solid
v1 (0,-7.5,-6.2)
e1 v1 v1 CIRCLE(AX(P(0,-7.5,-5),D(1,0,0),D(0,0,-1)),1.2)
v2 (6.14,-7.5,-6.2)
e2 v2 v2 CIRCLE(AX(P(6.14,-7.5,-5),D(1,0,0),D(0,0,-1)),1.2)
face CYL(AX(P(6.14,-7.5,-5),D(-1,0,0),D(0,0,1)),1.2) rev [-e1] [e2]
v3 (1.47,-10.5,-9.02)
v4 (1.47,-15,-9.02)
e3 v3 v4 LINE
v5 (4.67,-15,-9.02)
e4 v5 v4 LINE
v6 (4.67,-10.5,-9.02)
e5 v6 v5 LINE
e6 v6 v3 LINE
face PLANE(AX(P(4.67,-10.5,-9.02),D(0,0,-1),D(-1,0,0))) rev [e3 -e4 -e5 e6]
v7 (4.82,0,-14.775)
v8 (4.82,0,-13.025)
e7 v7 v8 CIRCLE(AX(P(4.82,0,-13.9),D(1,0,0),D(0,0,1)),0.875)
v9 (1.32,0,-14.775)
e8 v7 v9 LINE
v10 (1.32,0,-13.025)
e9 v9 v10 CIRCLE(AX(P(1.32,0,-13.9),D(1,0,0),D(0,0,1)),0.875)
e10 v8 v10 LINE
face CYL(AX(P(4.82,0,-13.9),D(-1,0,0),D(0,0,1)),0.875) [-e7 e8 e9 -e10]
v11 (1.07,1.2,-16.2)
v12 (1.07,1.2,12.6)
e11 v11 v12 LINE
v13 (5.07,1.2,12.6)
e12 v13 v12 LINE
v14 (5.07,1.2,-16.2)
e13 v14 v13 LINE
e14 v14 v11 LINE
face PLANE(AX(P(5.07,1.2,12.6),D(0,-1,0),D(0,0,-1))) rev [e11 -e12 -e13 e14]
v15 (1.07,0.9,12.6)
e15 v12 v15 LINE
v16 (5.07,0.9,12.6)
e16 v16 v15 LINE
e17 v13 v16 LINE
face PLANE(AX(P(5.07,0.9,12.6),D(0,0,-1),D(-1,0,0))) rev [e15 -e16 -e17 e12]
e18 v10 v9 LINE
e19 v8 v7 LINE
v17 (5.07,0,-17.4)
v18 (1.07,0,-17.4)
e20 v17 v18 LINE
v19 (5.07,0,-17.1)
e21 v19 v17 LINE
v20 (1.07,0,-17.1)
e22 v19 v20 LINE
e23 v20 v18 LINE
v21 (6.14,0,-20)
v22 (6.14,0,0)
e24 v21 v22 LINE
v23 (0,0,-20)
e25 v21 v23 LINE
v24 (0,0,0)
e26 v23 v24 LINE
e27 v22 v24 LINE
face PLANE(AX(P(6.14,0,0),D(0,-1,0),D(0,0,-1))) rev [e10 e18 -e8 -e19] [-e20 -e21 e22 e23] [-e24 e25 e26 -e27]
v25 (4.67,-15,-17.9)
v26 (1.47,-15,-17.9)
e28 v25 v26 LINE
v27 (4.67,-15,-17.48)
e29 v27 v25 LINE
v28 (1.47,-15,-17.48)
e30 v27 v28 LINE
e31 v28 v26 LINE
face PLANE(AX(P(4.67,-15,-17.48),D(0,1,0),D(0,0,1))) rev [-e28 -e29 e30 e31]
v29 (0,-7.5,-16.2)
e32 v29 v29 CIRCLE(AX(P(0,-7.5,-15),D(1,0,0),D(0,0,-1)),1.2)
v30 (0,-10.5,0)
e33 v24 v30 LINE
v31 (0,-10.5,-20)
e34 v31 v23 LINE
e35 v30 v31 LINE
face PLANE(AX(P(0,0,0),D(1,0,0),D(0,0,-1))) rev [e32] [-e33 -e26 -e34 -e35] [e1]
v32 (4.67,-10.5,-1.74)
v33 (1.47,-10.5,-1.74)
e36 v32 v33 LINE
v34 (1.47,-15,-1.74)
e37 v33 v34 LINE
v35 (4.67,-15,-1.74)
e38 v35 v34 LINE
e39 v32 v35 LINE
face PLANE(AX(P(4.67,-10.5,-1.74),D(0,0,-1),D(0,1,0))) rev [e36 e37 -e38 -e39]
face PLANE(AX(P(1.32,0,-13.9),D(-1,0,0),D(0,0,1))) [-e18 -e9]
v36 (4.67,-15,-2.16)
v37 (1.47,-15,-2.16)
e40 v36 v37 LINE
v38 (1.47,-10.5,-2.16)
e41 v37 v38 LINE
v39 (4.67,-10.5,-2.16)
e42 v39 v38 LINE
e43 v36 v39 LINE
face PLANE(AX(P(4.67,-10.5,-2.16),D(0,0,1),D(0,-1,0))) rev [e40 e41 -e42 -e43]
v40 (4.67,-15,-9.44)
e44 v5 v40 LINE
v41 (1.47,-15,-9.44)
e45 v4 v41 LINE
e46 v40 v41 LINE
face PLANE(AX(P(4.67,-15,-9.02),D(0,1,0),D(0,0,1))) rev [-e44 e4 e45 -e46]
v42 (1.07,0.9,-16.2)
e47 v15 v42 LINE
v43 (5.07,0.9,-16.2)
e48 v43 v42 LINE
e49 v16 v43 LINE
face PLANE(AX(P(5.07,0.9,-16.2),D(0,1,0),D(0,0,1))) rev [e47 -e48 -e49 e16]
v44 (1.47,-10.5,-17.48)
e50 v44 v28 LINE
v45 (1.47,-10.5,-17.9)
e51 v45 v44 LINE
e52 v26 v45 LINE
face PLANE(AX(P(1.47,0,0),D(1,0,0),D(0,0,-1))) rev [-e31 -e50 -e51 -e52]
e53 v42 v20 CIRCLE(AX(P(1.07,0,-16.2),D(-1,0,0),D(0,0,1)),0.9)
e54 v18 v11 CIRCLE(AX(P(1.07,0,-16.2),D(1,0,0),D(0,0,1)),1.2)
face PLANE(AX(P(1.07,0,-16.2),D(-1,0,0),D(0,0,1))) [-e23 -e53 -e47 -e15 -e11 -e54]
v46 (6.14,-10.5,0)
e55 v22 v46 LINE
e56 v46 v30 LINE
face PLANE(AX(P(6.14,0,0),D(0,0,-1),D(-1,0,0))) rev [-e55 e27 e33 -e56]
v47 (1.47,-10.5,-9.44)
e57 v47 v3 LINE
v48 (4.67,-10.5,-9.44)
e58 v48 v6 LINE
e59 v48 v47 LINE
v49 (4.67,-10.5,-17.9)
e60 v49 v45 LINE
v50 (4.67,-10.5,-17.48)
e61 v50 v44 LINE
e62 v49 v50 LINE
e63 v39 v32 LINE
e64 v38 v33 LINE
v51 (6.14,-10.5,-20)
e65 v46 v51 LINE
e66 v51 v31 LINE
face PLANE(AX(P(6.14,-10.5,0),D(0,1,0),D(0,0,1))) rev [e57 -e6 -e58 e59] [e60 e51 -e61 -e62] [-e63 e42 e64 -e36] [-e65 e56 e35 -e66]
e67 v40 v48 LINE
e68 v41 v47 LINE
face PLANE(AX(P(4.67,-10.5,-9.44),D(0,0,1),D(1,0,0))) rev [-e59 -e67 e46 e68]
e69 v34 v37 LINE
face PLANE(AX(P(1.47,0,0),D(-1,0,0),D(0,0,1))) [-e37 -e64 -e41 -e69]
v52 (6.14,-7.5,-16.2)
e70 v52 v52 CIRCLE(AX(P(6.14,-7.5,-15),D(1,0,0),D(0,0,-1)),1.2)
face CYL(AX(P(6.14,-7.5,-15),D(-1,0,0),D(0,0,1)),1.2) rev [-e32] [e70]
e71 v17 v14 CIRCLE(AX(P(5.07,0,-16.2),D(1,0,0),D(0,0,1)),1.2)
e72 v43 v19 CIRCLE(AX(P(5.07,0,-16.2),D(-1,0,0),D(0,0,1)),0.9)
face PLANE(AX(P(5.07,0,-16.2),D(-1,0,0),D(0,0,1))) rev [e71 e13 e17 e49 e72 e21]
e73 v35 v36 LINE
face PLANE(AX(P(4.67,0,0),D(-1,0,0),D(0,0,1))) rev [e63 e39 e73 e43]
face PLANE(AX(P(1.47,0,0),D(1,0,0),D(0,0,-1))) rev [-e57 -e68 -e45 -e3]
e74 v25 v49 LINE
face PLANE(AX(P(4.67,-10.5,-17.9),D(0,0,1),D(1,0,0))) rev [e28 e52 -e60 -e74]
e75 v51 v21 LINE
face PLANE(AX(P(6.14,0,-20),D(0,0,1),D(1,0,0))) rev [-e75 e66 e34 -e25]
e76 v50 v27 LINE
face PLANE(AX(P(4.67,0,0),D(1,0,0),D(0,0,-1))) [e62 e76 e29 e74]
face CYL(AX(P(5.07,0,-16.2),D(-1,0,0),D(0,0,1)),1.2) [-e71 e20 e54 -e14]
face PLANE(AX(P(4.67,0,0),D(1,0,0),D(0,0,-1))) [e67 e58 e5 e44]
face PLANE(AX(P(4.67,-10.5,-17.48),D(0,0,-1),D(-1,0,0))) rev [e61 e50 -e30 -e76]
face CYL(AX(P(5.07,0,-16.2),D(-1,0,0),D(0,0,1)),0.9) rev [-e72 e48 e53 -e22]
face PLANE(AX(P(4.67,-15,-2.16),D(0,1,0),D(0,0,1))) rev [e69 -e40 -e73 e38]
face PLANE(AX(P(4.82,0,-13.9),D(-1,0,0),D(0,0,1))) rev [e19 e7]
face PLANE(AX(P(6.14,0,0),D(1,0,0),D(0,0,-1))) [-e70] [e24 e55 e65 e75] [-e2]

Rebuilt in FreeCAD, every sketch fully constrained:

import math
import FreeCAD as App
import Part
import Sketcher
Q = App.Units.Quantity

doc = App.newDocument("Part")
params = doc.addObject("Spreadsheet::Sheet", "Params")
for row, (alias, value) in enumerate([
    ("sketch1_diameter", "2.4 mm"),
    ("sketch1_height", "20 mm"),
    ("sketch1_width", "10.5 mm"),
    ("pad1_length", "6.14 mm"),
    ("sketch2_radius", "0.9 mm"),
    ("sketch2_radius2", "1.2 mm"),
    ("sketch2_height", "28.8 mm"),
    ("pad2_length", "4 mm"),
    ("pad3_length", "3.5 mm"),
    ("sketch4_width", "4.5 mm"),
    ("sketch4_height", "0.42 mm"),
    ("pad4_length", "3.2 mm"),
], start=1):
    params.set(f"A{row}", alias)
    params.set(f"B{row}", "=" + value)
    params.setAlias(f"B{row}", alias)

body = doc.addObject("PartDesign::Body", "Body")

# Sketch on YZ plane
sketch1 = doc.addObject("Sketcher::SketchObject", "Sketch")
body.addObject(sketch1)
sketch1.AttachmentSupport = (doc.YZ_Plane, [""])
sketch1.MapMode = "FlatFace"
sketch1.addGeometry(Part.LineSegment(App.Vector(0, 0, 0), App.Vector(-10.5, 0, 0)), False)
sketch1.addGeometry(Part.LineSegment(App.Vector(-10.5, 0, 0), App.Vector(-10.5, -20, 0)), False)
sketch1.addGeometry(Part.LineSegment(App.Vector(-10.5, -20, 0), App.Vector(0, -20, 0)), False)
sketch1.addGeometry(Part.LineSegment(App.Vector(0, -20, 0), App.Vector(0, 0, 0)), False)
sketch1.addGeometry(Part.Circle(App.Vector(-7.5, -5, 0), App.Vector(0, 0, 1), 1.2), False)
sketch1.addGeometry(Part.Circle(App.Vector(-7.5, -15, 0), App.Vector(0, 0, 1), 1.2), False)
sketch1.addConstraint(Sketcher.Constraint("Coincident", 0, 2, 1, 1))
sketch1.addConstraint(Sketcher.Constraint("Coincident", 1, 2, 2, 1))
sketch1.addConstraint(Sketcher.Constraint("Coincident", 2, 2, 3, 1))
sketch1.addConstraint(Sketcher.Constraint("Coincident", 3, 2, 0, 1))
sketch1.addConstraint(Sketcher.Constraint("Horizontal", 0))
sketch1.addConstraint(Sketcher.Constraint("Vertical", 1))
sketch1.addConstraint(Sketcher.Constraint("Horizontal", 2))
sketch1.addConstraint(Sketcher.Constraint("Vertical", 3))
sketch1.addConstraint(Sketcher.Constraint("Coincident", 3, 2, -1, 1))
sketch1.addConstraint(Sketcher.Constraint("Equal", 4, 5))
sketch1.addConstraint(Sketcher.Constraint("Vertical", 4, 3, 5, 3))
sketch1.addConstraint(Sketcher.Constraint("Diameter", 4, Q("2.4 mm")))
sketch1.addConstraint(Sketcher.Constraint("DistanceY", 1, 2, 1, 1, Q("20 mm")))
sketch1.addConstraint(Sketcher.Constraint("DistanceX", 0, 2, 0, 1, Q("10.5 mm")))
sketch1.addConstraint(Sketcher.Constraint("DistanceY", 4, 3, -1, 1, Q("5 mm")))
sketch1.addConstraint(Sketcher.Constraint("DistanceY", 5, 3, -1, 1, Q("15 mm")))
sketch1.addConstraint(Sketcher.Constraint("DistanceX", 0, 2, 4, 3, Q("3 mm")))
sketch1.setExpression("Constraints[11]", "Params.sketch1_diameter")
sketch1.setExpression("Constraints[12]", "Params.sketch1_height")
sketch1.setExpression("Constraints[13]", "Params.sketch1_width")
pad1 = doc.addObject("PartDesign::Pad", "Pad")
body.addObject(pad1)
pad1.Profile = sketch1
pad1.setExpression("Length", "Params.pad1_length")

# Sketch on YZ plane
sketch2 = doc.addObject("Sketcher::SketchObject", "Sketch001")
body.addObject(sketch2)
sketch2.AttachmentSupport = (doc.YZ_Plane, [""])
sketch2.MapMode = "FlatFace"
sketch2.AttachmentOffset = App.Placement(App.Vector(0, 0, 3.07), App.Rotation())
sketch2.addGeometry(Part.LineSegment(App.Vector(0.9, 12.6, 0), App.Vector(0.9, -16.2, 0)), False)
sketch2.addGeometry(Part.ArcOfCircle(Part.Circle(App.Vector(0, -16.2, 0), App.Vector(0, 0, 1), 0.9), math.radians(-90), math.radians(0)), False)
sketch2.addGeometry(Part.LineSegment(App.Vector(0, -17.1, 0), App.Vector(0, -17.4, 0)), False)
sketch2.addGeometry(Part.ArcOfCircle(Part.Circle(App.Vector(0, -16.2, 0), App.Vector(0, 0, 1), 1.2), math.radians(-90), math.radians(0)), False)
sketch2.addGeometry(Part.LineSegment(App.Vector(1.2, -16.2, 0), App.Vector(1.2, 12.6, 0)), False)
sketch2.addGeometry(Part.LineSegment(App.Vector(1.2, 12.6, 0), App.Vector(0.9, 12.6, 0)), False)
sketch2.addConstraint(Sketcher.Constraint("Tangent", 0, 2, 1, 2))
sketch2.addConstraint(Sketcher.Constraint("Coincident", 1, 1, 2, 1))
sketch2.addConstraint(Sketcher.Constraint("Coincident", 2, 2, 3, 1))
sketch2.addConstraint(Sketcher.Constraint("Tangent", 3, 2, 4, 1))
sketch2.addConstraint(Sketcher.Constraint("Coincident", 4, 2, 5, 1))
sketch2.addConstraint(Sketcher.Constraint("Coincident", 5, 2, 0, 1))
sketch2.addConstraint(Sketcher.Constraint("Vertical", 0))
sketch2.addConstraint(Sketcher.Constraint("Vertical", 2))
sketch2.addConstraint(Sketcher.Constraint("Vertical", 4))
sketch2.addConstraint(Sketcher.Constraint("Horizontal", 5))
sketch2.addConstraint(Sketcher.Constraint("Coincident", 3, 3, 1, 3))
sketch2.addConstraint(Sketcher.Constraint("PointOnObject", 1, 3, -2))
sketch2.addConstraint(Sketcher.Constraint("PointOnObject", 1, 1, -2))
sketch2.addConstraint(Sketcher.Constraint("Radius", 1, Q("0.9 mm")))
sketch2.addConstraint(Sketcher.Constraint("Radius", 3, Q("1.2 mm")))
sketch2.addConstraint(Sketcher.Constraint("DistanceY", 0, 2, 0, 1, Q("28.8 mm")))
sketch2.addConstraint(Sketcher.Constraint("DistanceY", 1, 3, -1, 1, Q("16.2 mm")))
sketch2.setExpression("Constraints[13]", "Params.sketch2_radius")
sketch2.setExpression("Constraints[14]", "Params.sketch2_radius2")
sketch2.setExpression("Constraints[15]", "Params.sketch2_height")
pad2 = doc.addObject("PartDesign::Pad", "Pad001")
body.addObject(pad2)
pad2.Profile = sketch2
pad2.setExpression("Length", "Params.pad2_length")
pad2.Midplane = True

# Sketch on YZ plane
sketch3 = doc.addObject("Sketcher::SketchObject", "Sketch002")
body.addObject(sketch3)
sketch3.AttachmentSupport = (doc.YZ_Plane, [""])
sketch3.MapMode = "FlatFace"
sketch3.AttachmentOffset = App.Placement(App.Vector(0, 0, 3.07), App.Rotation())
sketch3.addGeometry(Part.LineSegment(App.Vector(0, -13.025, 0), App.Vector(0, -14.775, 0)), False)
sketch3.addGeometry(Part.ArcOfCircle(Part.Circle(App.Vector(0, -13.9, 0), App.Vector(0, 0, 1), 0.875), math.radians(-90), math.radians(90)), False)
sketch3.addConstraint(Sketcher.Constraint("Coincident", 0, 1, 1, 2))
sketch3.addConstraint(Sketcher.Constraint("Coincident", 1, 1, 0, 2))
sketch3.addConstraint(Sketcher.Constraint("Vertical", 0))
sketch3.addConstraint(Sketcher.Constraint("PointOnObject", 1, 3, -2))
sketch3.addConstraint(Sketcher.Constraint("PointOnObject", 0, 1, -2))
sketch3.addConstraint(Sketcher.Constraint("Radius", 1, Q("0.875 mm")))
sketch3.addConstraint(Sketcher.Constraint("DistanceY", 1, 3, -1, 1, Q("13.9 mm")))
pad3 = doc.addObject("PartDesign::Pad", "Pad002")
body.addObject(pad3)
pad3.Profile = sketch3
pad3.setExpression("Length", "Params.pad3_length")
pad3.Midplane = True

# Sketch on YZ plane
sketch4 = doc.addObject("Sketcher::SketchObject", "Sketch003")
body.addObject(sketch4)
sketch4.AttachmentSupport = (doc.YZ_Plane, [""])
sketch4.MapMode = "FlatFace"
sketch4.AttachmentOffset = App.Placement(App.Vector(0, 0, 3.07), App.Rotation())
sketch4.addGeometry(Part.LineSegment(App.Vector(-10.5, -1.74, 0), App.Vector(-15, -1.74, 0)), False)
sketch4.addGeometry(Part.LineSegment(App.Vector(-15, -1.74, 0), App.Vector(-15, -2.16, 0)), False)
sketch4.addGeometry(Part.LineSegment(App.Vector(-15, -2.16, 0), App.Vector(-10.5, -2.16, 0)), False)
sketch4.addGeometry(Part.LineSegment(App.Vector(-10.5, -2.16, 0), App.Vector(-10.5, -1.74, 0)), False)
sketch4.addGeometry(Part.LineSegment(App.Vector(-10.5, -9.02, 0), App.Vector(-15, -9.02, 0)), False)
sketch4.addGeometry(Part.LineSegment(App.Vector(-15, -9.02, 0), App.Vector(-15, -9.44, 0)), False)
sketch4.addGeometry(Part.LineSegment(App.Vector(-15, -9.44, 0), App.Vector(-10.5, -9.44, 0)), False)
sketch4.addGeometry(Part.LineSegment(App.Vector(-10.5, -9.44, 0), App.Vector(-10.5, -9.02, 0)), False)
sketch4.addGeometry(Part.LineSegment(App.Vector(-10.5, -17.48, 0), App.Vector(-15, -17.48, 0)), False)
sketch4.addGeometry(Part.LineSegment(App.Vector(-15, -17.48, 0), App.Vector(-15, -17.9, 0)), False)
sketch4.addGeometry(Part.LineSegment(App.Vector(-15, -17.9, 0), App.Vector(-10.5, -17.9, 0)), False)
sketch4.addGeometry(Part.LineSegment(App.Vector(-10.5, -17.9, 0), App.Vector(-10.5, -17.48, 0)), False)
sketch4.addConstraint(Sketcher.Constraint("Coincident", 0, 2, 1, 1))
sketch4.addConstraint(Sketcher.Constraint("Coincident", 1, 2, 2, 1))
sketch4.addConstraint(Sketcher.Constraint("Coincident", 2, 2, 3, 1))
sketch4.addConstraint(Sketcher.Constraint("Coincident", 3, 2, 0, 1))
sketch4.addConstraint(Sketcher.Constraint("Coincident", 4, 2, 5, 1))
sketch4.addConstraint(Sketcher.Constraint("Coincident", 5, 2, 6, 1))
sketch4.addConstraint(Sketcher.Constraint("Coincident", 6, 2, 7, 1))
sketch4.addConstraint(Sketcher.Constraint("Coincident", 7, 2, 4, 1))
sketch4.addConstraint(Sketcher.Constraint("Coincident", 8, 2, 9, 1))
sketch4.addConstraint(Sketcher.Constraint("Coincident", 9, 2, 10, 1))
sketch4.addConstraint(Sketcher.Constraint("Coincident", 10, 2, 11, 1))
sketch4.addConstraint(Sketcher.Constraint("Coincident", 11, 2, 8, 1))
sketch4.addConstraint(Sketcher.Constraint("Horizontal", 0))
sketch4.addConstraint(Sketcher.Constraint("Vertical", 1))
sketch4.addConstraint(Sketcher.Constraint("Horizontal", 2))
sketch4.addConstraint(Sketcher.Constraint("Vertical", 3))
sketch4.addConstraint(Sketcher.Constraint("Horizontal", 4))
sketch4.addConstraint(Sketcher.Constraint("Vertical", 5))
sketch4.addConstraint(Sketcher.Constraint("Horizontal", 6))
sketch4.addConstraint(Sketcher.Constraint("Vertical", 7))
sketch4.addConstraint(Sketcher.Constraint("Horizontal", 8))
sketch4.addConstraint(Sketcher.Constraint("Vertical", 9))
sketch4.addConstraint(Sketcher.Constraint("Horizontal", 10))
sketch4.addConstraint(Sketcher.Constraint("Vertical", 11))
sketch4.addConstraint(Sketcher.Constraint("Vertical", 1, 2, 4, 2))
sketch4.addConstraint(Sketcher.Constraint("Vertical", 3, 2, 6, 2))
sketch4.addConstraint(Sketcher.Constraint("Vertical", 5, 2, 8, 2))
sketch4.addConstraint(Sketcher.Constraint("Vertical", 7, 2, 10, 2))
sketch4.addConstraint(Sketcher.Constraint("Equal", 3, 5))
sketch4.addConstraint(Sketcher.Constraint("Equal", 7, 9))
sketch4.addConstraint(Sketcher.Constraint("DistanceX", 0, 2, 0, 1, Q("4.5 mm")))
sketch4.addConstraint(Sketcher.Constraint("DistanceX", 0, 2, -1, 1, Q("15 mm")))
sketch4.addConstraint(Sketcher.Constraint("DistanceY", 1, 2, 1, 1, Q("0.42 mm")))
sketch4.addConstraint(Sketcher.Constraint("DistanceY", 9, 2, -1, 1, Q("17.9 mm")))
sketch4.addConstraint(Sketcher.Constraint("DistanceY", 5, 2, 0, 2, Q("7.7 mm")))
sketch4.addConstraint(Sketcher.Constraint("DistanceY", 0, 2, -1, 1, Q("1.74 mm")))
sketch4.setExpression("Constraints[30]", "Params.sketch4_width")
sketch4.setExpression("Constraints[32]", "Params.sketch4_height")
pad4 = doc.addObject("PartDesign::Pad", "Pad003")
body.addObject(pad4)
pad4.Profile = sketch4
pad4.setExpression("Length", "Params.pad4_length")
pad4.Midplane = True

doc.recompute()
